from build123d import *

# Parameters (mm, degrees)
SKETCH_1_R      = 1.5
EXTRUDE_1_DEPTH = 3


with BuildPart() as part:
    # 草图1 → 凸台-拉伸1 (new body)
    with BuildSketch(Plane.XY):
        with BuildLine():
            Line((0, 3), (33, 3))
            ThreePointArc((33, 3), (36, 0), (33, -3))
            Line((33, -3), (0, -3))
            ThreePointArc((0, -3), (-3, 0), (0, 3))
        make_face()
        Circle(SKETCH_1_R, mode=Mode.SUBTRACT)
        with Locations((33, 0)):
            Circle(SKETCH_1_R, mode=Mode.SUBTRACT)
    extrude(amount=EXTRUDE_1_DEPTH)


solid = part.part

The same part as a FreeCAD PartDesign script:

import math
import FreeCAD as App
import Part
import Sketcher

doc = App.newDocument("Part")
params = doc.addObject("Spreadsheet::Sheet", "Params")
for row, (alias, value) in enumerate([
    ("sketch1_diameter", "3 mm"),
    ("sketch1_radius", "3 mm"),
    ("sketch1_width", "33 mm"),
    ("pad1_length", "3 mm"),
], start=1):
    params.set(f"A{row}", alias)
    params.set(f"B{row}", "=" + value)
    params.setAlias(f"B{row}", alias)

body = doc.addObject("PartDesign::Body", "Body")

sketch1 = body.newObject("Sketcher::SketchObject", "Sketch")
sketch1.AttachmentSupport = (doc.getObject("XY_Plane"), [""])
sketch1.MapMode = "FlatFace"
sketch1.addGeometry(Part.LineSegment(App.Vector(33, 3, 0), App.Vector(0, 3, 0)), False)
sketch1.addGeometry(Part.ArcOfCircle(Part.Circle(App.Vector(0, 0, 0), App.Vector(0, 0, 1), 3), math.radians(90), math.radians(270)), False)
sketch1.addGeometry(Part.LineSegment(App.Vector(0, -3, 0), App.Vector(33, -3, 0)), False)
sketch1.addGeometry(Part.ArcOfCircle(Part.Circle(App.Vector(33, 0, 0), App.Vector(0, 0, 1), 3), math.radians(-90), math.radians(90)), False)
sketch1.addGeometry(Part.Circle(App.Vector(33, 0, 0), App.Vector(0, 0, 1), 1.5), False)
sketch1.addGeometry(Part.Circle(App.Vector(0, 0, 0), App.Vector(0, 0, 1), 1.5), False)
sketch1.addConstraint(Sketcher.Constraint("Tangent", 0, 2, 1, 1))
sketch1.addConstraint(Sketcher.Constraint("Tangent", 1, 2, 2, 1))
sketch1.addConstraint(Sketcher.Constraint("Tangent", 2, 2, 3, 1))
sketch1.addConstraint(Sketcher.Constraint("Tangent", 3, 2, 0, 1))
sketch1.addConstraint(Sketcher.Constraint("Horizontal", 0))
sketch1.addConstraint(Sketcher.Constraint("Horizontal", 2))
sketch1.addConstraint(Sketcher.Constraint("Coincident", 1, 3, -1, 1))
sketch1.addConstraint(Sketcher.Constraint("Coincident", 5, 3, -1, 1))
sketch1.addConstraint(Sketcher.Constraint("Coincident", 4, 3, 3, 3))
sketch1.addConstraint(Sketcher.Constraint("Equal", 4, 5))
sketch1.addConstraint(Sketcher.Constraint("Diameter", 4, 3.0))
sketch1.addConstraint(Sketcher.Constraint("Radius", 1, 3.0))
sketch1.addConstraint(Sketcher.Constraint("DistanceX", 0, 2, 0, 1, 33.0))
sketch1.setExpression("Constraints[10]", "Params.sketch1_diameter")
sketch1.setExpression("Constraints[11]", "Params.sketch1_radius")
sketch1.setExpression("Constraints[12]", "Params.sketch1_width")
pad1 = body.newObject("PartDesign::Pad", "Pad")
pad1.Profile = sketch1
pad1.setExpression("Length", "Params.pad1_length")

doc.recompute()
